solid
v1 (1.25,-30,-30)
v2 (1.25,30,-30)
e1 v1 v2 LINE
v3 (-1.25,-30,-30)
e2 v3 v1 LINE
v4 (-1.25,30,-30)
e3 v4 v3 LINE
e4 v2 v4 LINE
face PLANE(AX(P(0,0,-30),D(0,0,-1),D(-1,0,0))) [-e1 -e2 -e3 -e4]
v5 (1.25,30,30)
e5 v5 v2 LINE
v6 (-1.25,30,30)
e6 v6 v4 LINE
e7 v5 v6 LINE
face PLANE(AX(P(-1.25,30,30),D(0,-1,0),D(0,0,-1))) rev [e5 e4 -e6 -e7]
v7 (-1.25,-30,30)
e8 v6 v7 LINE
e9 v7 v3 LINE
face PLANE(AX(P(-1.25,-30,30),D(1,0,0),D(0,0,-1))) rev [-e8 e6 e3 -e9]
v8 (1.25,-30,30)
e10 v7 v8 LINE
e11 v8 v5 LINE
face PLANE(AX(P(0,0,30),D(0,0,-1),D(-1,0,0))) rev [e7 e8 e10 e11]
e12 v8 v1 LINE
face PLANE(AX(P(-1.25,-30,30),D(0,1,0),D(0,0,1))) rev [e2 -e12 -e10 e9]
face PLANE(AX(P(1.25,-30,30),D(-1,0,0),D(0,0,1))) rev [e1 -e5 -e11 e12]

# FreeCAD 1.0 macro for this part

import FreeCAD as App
import Part
import Sketcher
from FreeCAD import Vector
Q = App.Units.Quantity


def add_polygon(sketch, points):
    """Adds a closed chain of lines whose ends are joined by coincident constraints."""
    first, n = sketch.GeometryCount, len(points)
    for a, b in zip(points, points[1:] + points[:1]):
        sketch.addGeometry(Part.LineSegment(App.Vector(*a, 0), App.Vector(*b, 0)), False)
    for i in range(n):
        sketch.addConstraint(Sketcher.Constraint("Coincident", first + i, 2, first + (i + 1) % n, 1))

doc = App.newDocument("Part")
body = doc.addObject("PartDesign::Body", "Body")

sketch1 = doc.addObject("Sketcher::SketchObject", "Sketch")
body.addObject(sketch1)
sketch1.AttachmentSupport = (doc.XY_Plane, [""])
sketch1.MapMode = "FlatFace"
add_polygon(sketch1, [(-1.25, 30), (-1.25, -30), (1.25, -30), (1.25, 30)])
sketch1.addConstraint(Sketcher.Constraint("Vertical", 0))
sketch1.addConstraint(Sketcher.Constraint("Horizontal", 1))
sketch1.addConstraint(Sketcher.Constraint("Vertical", 2))
sketch1.addConstraint(Sketcher.Constraint("Horizontal", 3))
sketch1.addConstraint(Sketcher.Constraint("Symmetric", 0, 2, 2, 2, -1, 1))
sketch1.addConstraint(Sketcher.Constraint("DistanceY", 0, 2, 0, 1, Q("60 mm")))
sketch1.addConstraint(Sketcher.Constraint("DistanceX", 1, 1, 1, 2, Q("2.5 mm")))
pad1 = doc.addObject("PartDesign::Pad", "Pad")
body.addObject(pad1)
pad1.Profile = sketch1
pad1.Length = 60
pad1.Midplane = True

doc.recompute()
